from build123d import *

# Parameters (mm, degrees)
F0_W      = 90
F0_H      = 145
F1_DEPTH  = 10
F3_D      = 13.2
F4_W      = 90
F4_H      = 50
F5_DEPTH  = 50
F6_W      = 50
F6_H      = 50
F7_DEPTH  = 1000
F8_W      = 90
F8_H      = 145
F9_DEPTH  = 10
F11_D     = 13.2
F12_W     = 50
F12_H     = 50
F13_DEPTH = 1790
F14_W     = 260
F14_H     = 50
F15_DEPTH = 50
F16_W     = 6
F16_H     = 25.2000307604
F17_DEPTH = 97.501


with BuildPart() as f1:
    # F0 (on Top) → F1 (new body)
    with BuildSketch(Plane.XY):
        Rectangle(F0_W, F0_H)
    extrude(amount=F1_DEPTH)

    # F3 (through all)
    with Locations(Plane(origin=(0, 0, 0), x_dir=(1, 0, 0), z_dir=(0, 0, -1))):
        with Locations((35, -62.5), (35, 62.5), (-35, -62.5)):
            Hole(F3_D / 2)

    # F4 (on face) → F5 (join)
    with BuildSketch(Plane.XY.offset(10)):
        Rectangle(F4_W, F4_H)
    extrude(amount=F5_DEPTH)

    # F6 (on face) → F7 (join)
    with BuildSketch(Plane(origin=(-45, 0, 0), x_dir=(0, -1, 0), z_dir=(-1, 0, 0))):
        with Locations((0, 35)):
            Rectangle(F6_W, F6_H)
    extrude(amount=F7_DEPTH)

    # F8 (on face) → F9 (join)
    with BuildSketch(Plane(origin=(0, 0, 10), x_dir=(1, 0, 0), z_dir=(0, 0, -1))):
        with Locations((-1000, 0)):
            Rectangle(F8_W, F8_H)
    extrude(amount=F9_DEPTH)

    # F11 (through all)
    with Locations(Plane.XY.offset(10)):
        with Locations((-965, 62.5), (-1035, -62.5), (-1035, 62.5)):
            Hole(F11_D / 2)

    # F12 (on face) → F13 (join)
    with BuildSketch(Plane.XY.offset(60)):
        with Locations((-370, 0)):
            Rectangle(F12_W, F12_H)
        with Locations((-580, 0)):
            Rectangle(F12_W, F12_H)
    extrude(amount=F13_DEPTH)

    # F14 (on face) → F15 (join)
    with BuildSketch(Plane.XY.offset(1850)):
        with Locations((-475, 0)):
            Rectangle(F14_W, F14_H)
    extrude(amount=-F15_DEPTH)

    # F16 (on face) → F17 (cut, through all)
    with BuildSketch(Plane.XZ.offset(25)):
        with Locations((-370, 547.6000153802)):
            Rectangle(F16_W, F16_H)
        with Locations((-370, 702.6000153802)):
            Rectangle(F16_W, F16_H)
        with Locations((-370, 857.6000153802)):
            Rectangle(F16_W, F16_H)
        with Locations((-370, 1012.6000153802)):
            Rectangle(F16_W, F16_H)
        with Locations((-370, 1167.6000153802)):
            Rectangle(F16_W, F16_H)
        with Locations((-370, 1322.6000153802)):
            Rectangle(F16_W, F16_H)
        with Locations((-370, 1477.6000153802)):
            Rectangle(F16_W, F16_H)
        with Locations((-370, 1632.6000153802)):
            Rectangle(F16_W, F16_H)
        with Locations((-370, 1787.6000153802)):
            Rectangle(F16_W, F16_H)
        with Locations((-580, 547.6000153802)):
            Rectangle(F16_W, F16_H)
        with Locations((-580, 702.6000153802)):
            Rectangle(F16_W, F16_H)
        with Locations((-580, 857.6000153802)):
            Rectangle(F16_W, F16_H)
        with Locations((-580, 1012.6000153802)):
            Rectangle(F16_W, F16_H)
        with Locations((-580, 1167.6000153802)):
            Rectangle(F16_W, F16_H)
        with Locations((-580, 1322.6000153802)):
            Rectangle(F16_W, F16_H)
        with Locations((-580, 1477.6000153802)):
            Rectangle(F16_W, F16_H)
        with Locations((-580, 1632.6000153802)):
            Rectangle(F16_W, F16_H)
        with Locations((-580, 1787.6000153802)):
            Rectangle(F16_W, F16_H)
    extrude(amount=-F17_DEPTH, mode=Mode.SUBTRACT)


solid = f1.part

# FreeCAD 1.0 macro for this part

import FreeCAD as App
import Part
import Sketcher

doc = App.newDocument("Part")
body = doc.addObject("PartDesign::Body", "Body")

# Sketch on XY plane
sketch1 = body.newObject("Sketcher::SketchObject", "Sketch")
sketch1.AttachmentSupport = (doc.getObject("XY_Plane"), [""])
sketch1.MapMode = "FlatFace"
sketch1.addGeometry([
    Part.LineSegment(App.Vector(-45, 72, 0), App.Vector(-45, -72, 0)),
    Part.LineSegment(App.Vector(-45, -72, 0), App.Vector(45, -72, 0)),
    Part.LineSegment(App.Vector(45, -72, 0), App.Vector(45, 72, 0)),
    Part.LineSegment(App.Vector(45, 72, 0), App.Vector(-45, 72, 0)),
], False)
sketch1.addConstraint([
    Sketcher.Constraint("Coincident", 0, 2, 1, 1),
    Sketcher.Constraint("Coincident", 1, 2, 2, 1),
    Sketcher.Constraint("Coincident", 2, 2, 3, 1),
    Sketcher.Constraint("Coincident", 3, 2, 0, 1),
    Sketcher.Constraint("Vertical", 0),
    Sketcher.Constraint("Horizontal", 1),
    Sketcher.Constraint("Vertical", 2),
    Sketcher.Constraint("Horizontal", 3),
    Sketcher.Constraint("Symmetric", 0, 2, 2, 2, -1, 1),
    Sketcher.Constraint("DistanceX", 1, 1, 1, 2, 90.0),
    Sketcher.Constraint("DistanceY", 0, 2, 0, 1, 145.0),
])
pad1 = body.newObject("PartDesign::Pad", "Pad")
pad1.Profile = sketch1
pad1.Length = 10

# Sketch on XY plane
sketch2 = body.newObject("Sketcher::SketchObject", "Sketch001")
sketch2.AttachmentSupport = (doc.getObject("XY_Plane"), [""])
sketch2.MapMode = "FlatFace"
sketch2.addGeometry([
    Part.Circle(App.Vector(35, 62, 0), App.Vector(0, 0, 1), 7),
    Part.Circle(App.Vector(35, -62, 0), App.Vector(0, 0, 1), 7),
    Part.Circle(App.Vector(-35, 62, 0), App.Vector(0, 0, 1), 7),
], False)
sketch2.addConstraint([
    Sketcher.Constraint("Equal", 0, 1),
    Sketcher.Constraint("Equal", 1, 2),
    Sketcher.Constraint("Symmetric", 1, 3, 2, 3, -1, 1),
    Sketcher.Constraint("Symmetric", 0, 3, 2, 3, -2),
    Sketcher.Constraint("Diameter", 0, 13.2),
    Sketcher.Constraint("DistanceX", -1, 1, 0, 3, 35.0),
    Sketcher.Constraint("DistanceY", 1, 3, 0, 3, 125.0),
])
doc.recompute()
hole = body.newObject("PartDesign::Hole", "Hole")
hole.Profile = sketch2
hole.ThreadType = "None"
hole.Diameter = 13.2
hole.DepthType = "ThroughAll"
hole.Reversed = True

# Sketch on XY plane
sketch3 = body.newObject("Sketcher::SketchObject", "Sketch002")
sketch3.AttachmentSupport = (doc.getObject("XY_Plane"), [""])
sketch3.MapMode = "FlatFace"
sketch3.AttachmentOffset = App.Placement(App.Vector(0, 0, 10), App.Rotation())
sketch3.addGeometry([
    Part.LineSegment(App.Vector(-45, 25, 0), App.Vector(-45, -25, 0)),
    Part.LineSegment(App.Vector(-45, -25, 0), App.Vector(45, -25, 0)),
    Part.LineSegment(App.Vector(45, -25, 0), App.Vector(45, 25, 0)),
    Part.LineSegment(App.Vector(45, 25, 0), App.Vector(-45, 25, 0)),
], False)
sketch3.addConstraint([
    Sketcher.Constraint("Coincident", 0, 2, 1, 1),
    Sketcher.Constraint("Coincident", 1, 2, 2, 1),
    Sketcher.Constraint("Coincident", 2, 2, 3, 1),
    Sketcher.Constraint("Coincident", 3, 2, 0, 1),
    Sketcher.Constraint("Vertical", 0),
    Sketcher.Constraint("Horizontal", 1),
    Sketcher.Constraint("Vertical", 2),
    Sketcher.Constraint("Horizontal", 3),
    Sketcher.Constraint("Symmetric", 0, 2, 2, 2, -1, 1),
    Sketcher.Constraint("DistanceX", 1, 1, 1, 2, 90.0),
    Sketcher.Constraint("DistanceY", 0, 2, 0, 1, 50.0),
])
pad2 = body.newObject("PartDesign::Pad", "Pad001")
pad2.Profile = sketch3
pad2.Length = 50

# Sketch on YZ plane
sketch4 = body.newObject("Sketcher::SketchObject", "Sketch003")
sketch4.AttachmentSupport = (doc.getObject("YZ_Plane"), [""])
sketch4.MapMode = "FlatFace"
sketch4.AttachmentOffset = App.Placement(App.Vector(0, 0, -45), App.Rotation())
sketch4.addGeometry([
    Part.LineSegment(App.Vector(25, 60, 0), App.Vector(25, 10, 0)),
    Part.LineSegment(App.Vector(25, 10, 0), App.Vector(-25, 10, 0)),
    Part.LineSegment(App.Vector(-25, 10, 0), App.Vector(-25, 60, 0)),
    Part.LineSegment(App.Vector(-25, 60, 0), App.Vector(25, 60, 0)),
], False)
sketch4.addConstraint([
    Sketcher.Constraint("Coincident", 0, 2, 1, 1),
    Sketcher.Constraint("Coincident", 1, 2, 2, 1),
    Sketcher.Constraint("Coincident", 2, 2, 3, 1),
    Sketcher.Constraint("Coincident", 3, 2, 0, 1),
    Sketcher.Constraint("Vertical", 0),
    Sketcher.Constraint("Horizontal", 1),
    Sketcher.Constraint("Vertical", 2),
    Sketcher.Constraint("Horizontal", 3),
    Sketcher.Constraint("Equal", 3, 0),
    Sketcher.Constraint("DistanceX", 1, 2, 1, 1, 50.0),
    Sketcher.Constraint("DistanceX", -1, 1, 0, 2, 25.0),
    Sketcher.Constraint("DistanceY", -1, 1, 0, 2, 10.0),
])
pad3 = body.newObject("PartDesign::Pad", "Pad002")
pad3.Profile = sketch4
pad3.Length = 1000
pad3.Reversed = True

# Sketch on XY plane
sketch5 = body.newObject("Sketcher::SketchObject", "Sketch004")
sketch5.AttachmentSupport = (doc.getObject("XY_Plane"), [""])
sketch5.MapMode = "FlatFace"
sketch5.AttachmentOffset = App.Placement(App.Vector(0, 0, 10), App.Rotation())
sketch5.addGeometry([
    Part.LineSegment(App.Vector(-1045, -72, 0), App.Vector(-1045, 72, 0)),
    Part.LineSegment(App.Vector(-1045, 72, 0), App.Vector(-955, 72, 0)),
    Part.LineSegment(App.Vector(-955, 72, 0), App.Vector(-955, -72, 0)),
    Part.LineSegment(App.Vector(-955, -72, 0), App.Vector(-1045, -72, 0)),
], False)
sketch5.addConstraint([
    Sketcher.Constraint("Coincident", 0, 2, 1, 1),
    Sketcher.Constraint("Coincident", 1, 2, 2, 1),
    Sketcher.Constraint("Coincident", 2, 2, 3, 1),
    Sketcher.Constraint("Coincident", 3, 2, 0, 1),
    Sketcher.Constraint("Vertical", 0),
    Sketcher.Constraint("Horizontal", 1),
    Sketcher.Constraint("Vertical", 2),
    Sketcher.Constraint("Horizontal", 3),
    Sketcher.Constraint("DistanceX", 1, 1, 1, 2, 90.0),
    Sketcher.Constraint("DistanceY", 0, 1, 0, 2, 145.0),
    Sketcher.Constraint("DistanceX", 0, 2, -1, 1, 1045.0),
    Sketcher.Constraint("DistanceY", -1, 1, 0, 2, 72.5),
])
pad4 = body.newObject("PartDesign::Pad", "Pad003")
pad4.Profile = sketch5
pad4.Length = 10
pad4.Reversed = True

# Sketch on XY plane
sketch6 = body.newObject("Sketcher::SketchObject", "Sketch005")
sketch6.AttachmentSupport = (doc.getObject("XY_Plane"), [""])
sketch6.MapMode = "FlatFace"
sketch6.AttachmentOffset = App.Placement(App.Vector(0, 0, 10), App.Rotation())
sketch6.addGeometry([
    Part.Circle(App.Vector(-965, 62, 0), App.Vector(0, 0, 1), 7),
    Part.Circle(App.Vector(-1035, -62, 0), App.Vector(0, 0, 1), 7),
    Part.Circle(App.Vector(-1035, 62, 0), App.Vector(0, 0, 1), 7),
], False)
sketch6.addConstraint([
    Sketcher.Constraint("Equal", 0, 1),
    Sketcher.Constraint("Equal", 1, 2),
    Sketcher.Constraint("Symmetric", 1, 3, 2, 3, -1),
    Sketcher.Constraint("Horizontal", 0, 3, 2, 3),
    Sketcher.Constraint("Diameter", 0, 13.2),
    Sketcher.Constraint("DistanceX", 0, 3, -1, 1, 965.0),
    Sketcher.Constraint("DistanceX", 1, 3, -1, 1, 1035.0),
    Sketcher.Constraint("DistanceY", 1, 3, 0, 3, 125.0),
])
doc.recompute()
hole2 = body.newObject("PartDesign::Hole", "Hole001")
hole2.Profile = sketch6
hole2.ThreadType = "None"
hole2.Diameter = 13.2
hole2.DepthType = "ThroughAll"

# Sketch on XY plane
sketch7 = body.newObject("Sketcher::SketchObject", "Sketch006")
sketch7.AttachmentSupport = (doc.getObject("XY_Plane"), [""])
sketch7.MapMode = "FlatFace"
sketch7.AttachmentOffset = App.Placement(App.Vector(0, 0, 60), App.Rotation())
sketch7.addGeometry([
    Part.LineSegment(App.Vector(-395, 25, 0), App.Vector(-395, -25, 0)),  # 0
    Part.LineSegment(App.Vector(-395, -25, 0), App.Vector(-345, -25, 0)),  # 1
    Part.LineSegment(App.Vector(-345, -25, 0), App.Vector(-345, 25, 0)),  # 2
    Part.LineSegment(App.Vector(-345, 25, 0), App.Vector(-395, 25, 0)),  # 3
    Part.LineSegment(App.Vector(-605, 25, 0), App.Vector(-605, -25, 0)),  # 4
    Part.LineSegment(App.Vector(-605, -25, 0), App.Vector(-555, -25, 0)),  # 5
    Part.LineSegment(App.Vector(-555, -25, 0), App.Vector(-555, 25, 0)),  # 6
    Part.LineSegment(App.Vector(-555, 25, 0), App.Vector(-605, 25, 0)),  # 7
], False)
sketch7.addConstraint([
    Sketcher.Constraint("Coincident", 0, 2, 1, 1),
    Sketcher.Constraint("Coincident", 1, 2, 2, 1),
    Sketcher.Constraint("Coincident", 2, 2, 3, 1),
    Sketcher.Constraint("Coincident", 3, 2, 0, 1),
    Sketcher.Constraint("Coincident", 4, 2, 5, 1),
    Sketcher.Constraint("Coincident", 5, 2, 6, 1),
    Sketcher.Constraint("Coincident", 6, 2, 7, 1),
    Sketcher.Constraint("Coincident", 7, 2, 4, 1),
    Sketcher.Constraint("Vertical", 0),
    Sketcher.Constraint("Horizontal", 1),
    Sketcher.Constraint("Vertical", 2),
    Sketcher.Constraint("Horizontal", 3),
    Sketcher.Constraint("Vertical", 4),
    Sketcher.Constraint("Horizontal", 5),
    Sketcher.Constraint("Vertical", 6),
    Sketcher.Constraint("Horizontal", 7),
    Sketcher.Constraint("Horizontal", 1, 2, 4, 2),
    Sketcher.Constraint("Horizontal", 3, 2, 6, 2),
    Sketcher.Constraint("Equal", 3, 5),
    Sketcher.Constraint("Equal", 7, 0),
    Sketcher.Constraint("DistanceX", 1, 1, 1, 2, 50.0),
    Sketcher.Constraint("DistanceX", 0, 2, -1, 1, 395.0),
    Sketcher.Constraint("DistanceY", 0, 2, -1, 1, 25.0),
    Sketcher.Constraint("DistanceX", 4, 2, -1, 1, 605.0),
])
pad5 = body.newObject("PartDesign::Pad", "Pad004")
pad5.Profile = sketch7
pad5.Length = 1790

# Sketch on XY plane
sketch8 = body.newObject("Sketcher::SketchObject", "Sketch007")
sketch8.AttachmentSupport = (doc.getObject("XY_Plane"), [""])
sketch8.MapMode = "FlatFace"
sketch8.AttachmentOffset = App.Placement(App.Vector(0, 0, 1850), App.Rotation())
sketch8.addGeometry([
    Part.LineSegment(App.Vector(-605, 25, 0), App.Vector(-605, -25, 0)),
    Part.LineSegment(App.Vector(-605, -25, 0), App.Vector(-345, -25, 0)),
    Part.LineSegment(App.Vector(-345, -25, 0), App.Vector(-345, 25, 0)),
    Part.LineSegment(App.Vector(-345, 25, 0), App.Vector(-605, 25, 0)),
], False)
sketch8.addConstraint([
    Sketcher.Constraint("Coincident", 0, 2, 1, 1),
    Sketcher.Constraint("Coincident", 1, 2, 2, 1),
    Sketcher.Constraint("Coincident", 2, 2, 3, 1),
    Sketcher.Constraint("Coincident", 3, 2, 0, 1),
    Sketcher.Constraint("Vertical", 0),
    Sketcher.Constraint("Horizontal", 1),
    Sketcher.Constraint("Vertical", 2),
    Sketcher.Constraint("Horizontal", 3),
    Sketcher.Constraint("DistanceX", 1, 1, 1, 2, 260.0),
    Sketcher.Constraint("DistanceY", 0, 2, 0, 1, 50.0),
    Sketcher.Constraint("DistanceX", 0, 2, -1, 1, 605.0),
    Sketcher.Constraint("DistanceY", 0, 2, -1, 1, 25.0),
])
pad6 = body.newObject("PartDesign::Pad", "Pad005")
pad6.Profile = sketch8
pad6.Length = 50
pad6.Reversed = True

# Sketch on XZ plane
sketch9 = body.newObject("Sketcher::SketchObject", "Sketch008")
sketch9.AttachmentSupport = (doc.getObject("XZ_Plane"), [""])
sketch9.MapMode = "FlatFace"
sketch9.AttachmentOffset = App.Placement(App.Vector(0, 0, 25), App.Rotation())
sketch9.addGeometry([
    Part.LineSegment(App.Vector(-373, 560, 0), App.Vector(-373, 535, 0)),  # 0
    Part.LineSegment(App.Vector(-373, 535, 0), App.Vector(-367, 535, 0)),  # 1
    Part.LineSegment(App.Vector(-367, 535, 0), App.Vector(-367, 560, 0)),  # 2
    Part.LineSegment(App.Vector(-367, 560, 0), App.Vector(-373, 560, 0)),  # 3
    Part.LineSegment(App.Vector(-373, 715, 0), App.Vector(-373, 690, 0)),  # 4
    Part.LineSegment(App.Vector(-373, 690, 0), App.Vector(-367, 690, 0)),  # 5
    Part.LineSegment(App.Vector(-367, 690, 0), App.Vector(-367, 715, 0)),  # 6
    Part.LineSegment(App.Vector(-367, 715, 0), App.Vector(-373, 715, 0)),  # 7
    Part.LineSegment(App.Vector(-373, 870, 0), App.Vector(-373, 845, 0)),  # 8
    Part.LineSegment(App.Vector(-373, 845, 0), App.Vector(-367, 845, 0)),  # 9
    Part.LineSegment(App.Vector(-367, 845, 0), App.Vector(-367, 870, 0)),  # 10
    Part.LineSegment(App.Vector(-367, 870, 0), App.Vector(-373, 870, 0)),  # 11
    Part.LineSegment(App.Vector(-373, 1025, 0), App.Vector(-373, 1000, 0)),  # 12
    Part.LineSegment(App.Vector(-373, 1000, 0), App.Vector(-367, 1000, 0)),  # 13
    Part.LineSegment(App.Vector(-367, 1000, 0), App.Vector(-367, 1025, 0)),  # 14
    Part.LineSegment(App.Vector(-367, 1025, 0), App.Vector(-373, 1025, 0)),  # 15
    Part.LineSegment(App.Vector(-373, 1180, 0), App.Vector(-373, 1155, 0)),  # 16
    Part.LineSegment(App.Vector(-373, 1155, 0), App.Vector(-367, 1155, 0)),  # 17
    Part.LineSegment(App.Vector(-367, 1155, 0), App.Vector(-367, 1180, 0)),  # 18
    Part.LineSegment(App.Vector(-367, 1180, 0), App.Vector(-373, 1180, 0)),  # 19
    Part.LineSegment(App.Vector(-373, 1335, 0), App.Vector(-373, 1310, 0)),  # 20
    Part.LineSegment(App.Vector(-373, 1310, 0), App.Vector(-367, 1310, 0)),  # 21
    Part.LineSegment(App.Vector(-367, 1310, 0), App.Vector(-367, 1335, 0)),  # 22
    Part.LineSegment(App.Vector(-367, 1335, 0), App.Vector(-373, 1335, 0)),  # 23
    Part.LineSegment(App.Vector(-373, 1490, 0), App.Vector(-373, 1465, 0)),  # 24
    Part.LineSegment(App.Vector(-373, 1465, 0), App.Vector(-367, 1465, 0)),  # 25
    Part.LineSegment(App.Vector(-367, 1465, 0), App.Vector(-367, 1490, 0)),  # 26
    Part.LineSegment(App.Vector(-367, 1490, 0), App.Vector(-373, 1490, 0)),  # 27
    Part.LineSegment(App.Vector(-373, 1645, 0), App.Vector(-373, 1620, 0)),  # 28
    Part.LineSegment(App.Vector(-373, 1620, 0), App.Vector(-367, 1620, 0)),  # 29
    Part.LineSegment(App.Vector(-367, 1620, 0), App.Vector(-367, 1645, 0)),  # 30
    Part.LineSegment(App.Vector(-367, 1645, 0), App.Vector(-373, 1645, 0)),  # 31
    Part.LineSegment(App.Vector(-373, 1800, 0), App.Vector(-373, 1775, 0)),  # 32
    Part.LineSegment(App.Vector(-373, 1775, 0), App.Vector(-367, 1775, 0)),  # 33
    Part.LineSegment(App.Vector(-367, 1775, 0), App.Vector(-367, 1800, 0)),  # 34
    Part.LineSegment(App.Vector(-367, 1800, 0), App.Vector(-373, 1800, 0)),  # 35
    Part.LineSegment(App.Vector(-583, 560, 0), App.Vector(-583, 535, 0)),  # 36
    Part.LineSegment(App.Vector(-583, 535, 0), App.Vector(-577, 535, 0)),  # 37
    Part.LineSegment(App.Vector(-577, 535, 0), App.Vector(-577, 560, 0)),  # 38
    Part.LineSegment(App.Vector(-577, 560, 0), App.Vector(-583, 560, 0)),  # 39
    Part.LineSegment(App.Vector(-583, 715, 0), App.Vector(-583, 690, 0)),  # 40
    Part.LineSegment(App.Vector(-583, 690, 0), App.Vector(-577, 690, 0)),  # 41
    Part.LineSegment(App.Vector(-577, 690, 0), App.Vector(-577, 715, 0)),  # 42
    Part.LineSegment(App.Vector(-577, 715, 0), App.Vector(-583, 715, 0)),  # 43
    Part.LineSegment(App.Vector(-583, 870, 0), App.Vector(-583, 845, 0)),  # 44
    Part.LineSegment(App.Vector(-583, 845, 0), App.Vector(-577, 845, 0)),  # 45
    Part.LineSegment(App.Vector(-577, 845, 0), App.Vector(-577, 870, 0)),  # 46
    Part.LineSegment(App.Vector(-577, 870, 0), App.Vector(-583, 870, 0)),  # 47
    Part.LineSegment(App.Vector(-583, 1025, 0), App.Vector(-583, 1000, 0)),  # 48
    Part.LineSegment(App.Vector(-583, 1000, 0), App.Vector(-577, 1000, 0)),  # 49
    Part.LineSegment(App.Vector(-577, 1000, 0), App.Vector(-577, 1025, 0)),  # 50
    Part.LineSegment(App.Vector(-577, 1025, 0), App.Vector(-583, 1025, 0)),  # 51
    Part.LineSegment(App.Vector(-583, 1180, 0), App.Vector(-583, 1155, 0)),  # 52
    Part.LineSegment(App.Vector(-583, 1155, 0), App.Vector(-577, 1155, 0)),  # 53
    Part.LineSegment(App.Vector(-577, 1155, 0), App.Vector(-577, 1180, 0)),  # 54
    Part.LineSegment(App.Vector(-577, 1180, 0), App.Vector(-583, 1180, 0)),  # 55
    Part.LineSegment(App.Vector(-583, 1335, 0), App.Vector(-583, 1310, 0)),  # 56
    Part.LineSegment(App.Vector(-583, 1310, 0), App.Vector(-577, 1310, 0)),  # 57
    Part.LineSegment(App.Vector(-577, 1310, 0), App.Vector(-577, 1335, 0)),  # 58
    Part.LineSegment(App.Vector(-577, 1335, 0), App.Vector(-583, 1335, 0)),  # 59
    Part.LineSegment(App.Vector(-583, 1490, 0), App.Vector(-583, 1465, 0)),  # 60
    Part.LineSegment(App.Vector(-583, 1465, 0), App.Vector(-577, 1465, 0)),  # 61
    Part.LineSegment(App.Vector(-577, 1465, 0), App.Vector(-577, 1490, 0)),  # 62
    Part.LineSegment(App.Vector(-577, 1490, 0), App.Vector(-583, 1490, 0)),  # 63
    Part.LineSegment(App.Vector(-583, 1645, 0), App.Vector(-583, 1620, 0)),  # 64
    Part.LineSegment(App.Vector(-583, 1620, 0), App.Vector(-577, 1620, 0)),  # 65
    Part.LineSegment(App.Vector(-577, 1620, 0), App.Vector(-577, 1645, 0)),  # 66
    Part.LineSegment(App.Vector(-577, 1645, 0), App.Vector(-583, 1645, 0)),  # 67
    Part.LineSegment(App.Vector(-583, 1800, 0), App.Vector(-583, 1775, 0)),  # 68
    Part.LineSegment(App.Vector(-583, 1775, 0), App.Vector(-577, 1775, 0)),  # 69
    Part.LineSegment(App.Vector(-577, 1775, 0), App.Vector(-577, 1800, 0)),  # 70
    Part.LineSegment(App.Vector(-577, 1800, 0), App.Vector(-583, 1800, 0)),  # 71
], False)
sketch9.addConstraint([
    Sketcher.Constraint("Coincident", 0, 2, 1, 1),
    Sketcher.Constraint("Coincident", 1, 2, 2, 1),
    Sketcher.Constraint("Coincident", 2, 2, 3, 1),
    Sketcher.Constraint("Coincident", 3, 2, 0, 1),
    Sketcher.Constraint("Coincident", 4, 2, 5, 1),
    Sketcher.Constraint("Coincident", 5, 2, 6, 1),
    Sketcher.Constraint("Coincident", 6, 2, 7, 1),
    Sketcher.Constraint("Coincident", 7, 2, 4, 1),
    Sketcher.Constraint("Coincident", 8, 2, 9, 1),
    Sketcher.Constraint("Coincident", 9, 2, 10, 1),
    Sketcher.Constraint("Coincident", 10, 2, 11, 1),
    Sketcher.Constraint("Coincident", 11, 2, 8, 1),
    Sketcher.Constraint("Coincident", 12, 2, 13, 1),
    Sketcher.Constraint("Coincident", 13, 2, 14, 1),
    Sketcher.Constraint("Coincident", 14, 2, 15, 1),
    Sketcher.Constraint("Coincident", 15, 2, 12, 1),
    Sketcher.Constraint("Coincident", 16, 2, 17, 1),
    Sketcher.Constraint("Coincident", 17, 2, 18, 1),
    Sketcher.Constraint("Coincident", 18, 2, 19, 1),
    Sketcher.Constraint("Coincident", 19, 2, 16, 1),
    Sketcher.Constraint("Coincident", 20, 2, 21, 1),
    Sketcher.Constraint("Coincident", 21, 2, 22, 1),
    Sketcher.Constraint("Coincident", 22, 2, 23, 1),
    Sketcher.Constraint("Coincident", 23, 2, 20, 1),
    Sketcher.Constraint("Coincident", 24, 2, 25, 1),
    Sketcher.Constraint("Coincident", 25, 2, 26, 1),
    Sketcher.Constraint("Coincident", 26, 2, 27, 1),
    Sketcher.Constraint("Coincident", 27, 2, 24, 1),
    Sketcher.Constraint("Coincident", 28, 2, 29, 1),
    Sketcher.Constraint("Coincident", 29, 2, 30, 1),
    Sketcher.Constraint("Coincident", 30, 2, 31, 1),
    Sketcher.Constraint("Coincident", 31, 2, 28, 1),
    Sketcher.Constraint("Coincident", 32, 2, 33, 1),
    Sketcher.Constraint("Coincident", 33, 2, 34, 1),
    Sketcher.Constraint("Coincident", 34, 2, 35, 1),
    Sketcher.Constraint("Coincident", 35, 2, 32, 1),
    Sketcher.Constraint("Coincident", 36, 2, 37, 1),
    Sketcher.Constraint("Coincident", 37, 2, 38, 1),
    Sketcher.Constraint("Coincident", 38, 2, 39, 1),
    Sketcher.Constraint("Coincident", 39, 2, 36, 1),
    Sketcher.Constraint("Coincident", 40, 2, 41, 1),
    Sketcher.Constraint("Coincident", 41, 2, 42, 1),
    Sketcher.Constraint("Coincident", 42, 2, 43, 1),
    Sketcher.Constraint("Coincident", 43, 2, 40, 1),
    Sketcher.Constraint("Coincident", 44, 2, 45, 1),
    Sketcher.Constraint("Coincident", 45, 2, 46, 1),
    Sketcher.Constraint("Coincident", 46, 2, 47, 1),
    Sketcher.Constraint("Coincident", 47, 2, 44, 1),
    Sketcher.Constraint("Coincident", 48, 2, 49, 1),
    Sketcher.Constraint("Coincident", 49, 2, 50, 1),
    Sketcher.Constraint("Coincident", 50, 2, 51, 1),
    Sketcher.Constraint("Coincident", 51, 2, 48, 1),
    Sketcher.Constraint("Coincident", 52, 2, 53, 1),
    Sketcher.Constraint("Coincident", 53, 2, 54, 1),
    Sketcher.Constraint("Coincident", 54, 2, 55, 1),
    Sketcher.Constraint("Coincident", 55, 2, 52, 1),
    Sketcher.Constraint("Coincident", 56, 2, 57, 1),
    Sketcher.Constraint("Coincident", 57, 2, 58, 1),
    Sketcher.Constraint("Coincident", 58, 2, 59, 1),
    Sketcher.Constraint("Coincident", 59, 2, 56, 1),
    Sketcher.Constraint("Coincident", 60, 2, 61, 1),
    Sketcher.Constraint("Coincident", 61, 2, 62, 1),
    Sketcher.Constraint("Coincident", 62, 2, 63, 1),
    Sketcher.Constraint("Coincident", 63, 2, 60, 1),
    Sketcher.Constraint("Coincident", 64, 2, 65, 1),
    Sketcher.Constraint("Coincident", 65, 2, 66, 1),
    Sketcher.Constraint("Coincident", 66, 2, 67, 1),
    Sketcher.Constraint("Coincident", 67, 2, 64, 1),
    Sketcher.Constraint("Coincident", 68, 2, 69, 1),
    Sketcher.Constraint("Coincident", 69, 2, 70, 1),
    Sketcher.Constraint("Coincident", 70, 2, 71, 1),
    Sketcher.Constraint("Coincident", 71, 2, 68, 1),
    Sketcher.Constraint("Vertical", 0),
    Sketcher.Constraint("Horizontal", 1),
    Sketcher.Constraint("Vertical", 2),
    Sketcher.Constraint("Horizontal", 3),
    Sketcher.Constraint("Vertical", 4),
    Sketcher.Constraint("Horizontal", 5),
    Sketcher.Constraint("Vertical", 6),
    Sketcher.Constraint("Horizontal", 7),
    Sketcher.Constraint("Vertical", 8),
    Sketcher.Constraint("Horizontal", 9),
    Sketcher.Constraint("Vertical", 10),
    Sketcher.Constraint("Horizontal", 11),
    Sketcher.Constraint("Vertical", 12),
    Sketcher.Constraint("Horizontal", 13),
    Sketcher.Constraint("Vertical", 14),
    Sketcher.Constraint("Horizontal", 15),
    Sketcher.Constraint("Vertical", 16),
    Sketcher.Constraint("Horizontal", 17),
    Sketcher.Constraint("Vertical", 18),
    Sketcher.Constraint("Horizontal", 19),
    Sketcher.Constraint("Vertical", 20),
    Sketcher.Constraint("Horizontal", 21),
    Sketcher.Constraint("Vertical", 22),
    Sketcher.Constraint("Horizontal", 23),
    Sketcher.Constraint("Vertical", 24),
    Sketcher.Constraint("Horizontal", 25),
    Sketcher.Constraint("Vertical", 26),
    Sketcher.Constraint("Horizontal", 27),
    Sketcher.Constraint("Vertical", 28),
    Sketcher.Constraint("Horizontal", 29),
    Sketcher.Constraint("Vertical", 30),
    Sketcher.Constraint("Horizontal", 31),
    Sketcher.Constraint("Vertical", 32),
    Sketcher.Constraint("Horizontal", 33),
    Sketcher.Constraint("Vertical", 34),
    Sketcher.Constraint("Horizontal", 35),
    Sketcher.Constraint("Vertical", 36),
    Sketcher.Constraint("Horizontal", 37),
    Sketcher.Constraint("Vertical", 38),
    Sketcher.Constraint("Horizontal", 39),
    Sketcher.Constraint("Vertical", 40),
    Sketcher.Constraint("Horizontal", 41),
    Sketcher.Constraint("Vertical", 42),
    Sketcher.Constraint("Horizontal", 43),
    Sketcher.Constraint("Vertical", 44),
    Sketcher.Constraint("Horizontal", 45),
    Sketcher.Constraint("Vertical", 46),
    Sketcher.Constraint("Horizontal", 47),
    Sketcher.Constraint("Vertical", 48),
    Sketcher.Constraint("Horizontal", 49),
    Sketcher.Constraint("Vertical", 50),
    Sketcher.Constraint("Horizontal", 51),
    Sketcher.Constraint("Vertical", 52),
    Sketcher.Constraint("Horizontal", 53),
    Sketcher.Constraint("Vertical", 54),
    Sketcher.Constraint("Horizontal", 55),
    Sketcher.Constraint("Vertical", 56),
    Sketcher.Constraint("Horizontal", 57),
    Sketcher.Constraint("Vertical", 58),
    Sketcher.Constraint("Horizontal", 59),
    Sketcher.Constraint("Vertical", 60),
    Sketcher.Constraint("Horizontal", 61),
    Sketcher.Constraint("Vertical", 62),
    Sketcher.Constraint("Horizontal", 63),
    Sketcher.Constraint("Vertical", 64),
    Sketcher.Constraint("Horizontal", 65),
    Sketcher.Constraint("Vertical", 66),
    Sketcher.Constraint("Horizontal", 67),
    Sketcher.Constraint("Vertical", 68),
    Sketcher.Constraint("Horizontal", 69),
    Sketcher.Constraint("Vertical", 70),
    Sketcher.Constraint("Horizontal", 71),
    Sketcher.Constraint("Horizontal", 1, 2, 36, 2),
    Sketcher.Constraint("Horizontal", 3, 2, 38, 2),
    Sketcher.Constraint("Horizontal", 5, 2, 40, 2),
    Sketcher.Constraint("Horizontal", 7, 2, 42, 2),
    Sketcher.Constraint("Horizontal", 9, 2, 44, 2),
    Sketcher.Constraint("Horizontal", 11, 2, 46, 2),
    Sketcher.Constraint("Horizontal", 13, 2, 48, 2),
    Sketcher.Constraint("Horizontal", 15, 2, 50, 2),
    Sketcher.Constraint("Horizontal", 17, 2, 52, 2),
    Sketcher.Constraint("Horizontal", 19, 2, 54, 2),
    Sketcher.Constraint("Horizontal", 21, 2, 56, 2),
    Sketcher.Constraint("Horizontal", 23, 2, 58, 2),
    Sketcher.Constraint("Horizontal", 25, 2, 60, 2),
    Sketcher.Constraint("Horizontal", 27, 2, 62, 2),
    Sketcher.Constraint("Horizontal", 29, 2, 64, 2),
    Sketcher.Constraint("Horizontal", 31, 2, 66, 2),
    Sketcher.Constraint("Horizontal", 33, 2, 68, 2),
    Sketcher.Constraint("Horizontal", 35, 2, 70, 2),
    Sketcher.Constraint("Vertical", 3, 2, 4, 2),
    Sketcher.Constraint("Vertical", 2, 2, 5, 2),
    Sketcher.Constraint("Vertical", 7, 2, 8, 2),
    Sketcher.Constraint("Vertical", 6, 2, 9, 2),
    Sketcher.Constraint("Vertical", 11, 2, 12, 2),
    Sketcher.Constraint("Vertical", 10, 2, 13, 2),
    Sketcher.Constraint("Vertical", 15, 2, 16, 2),
    Sketcher.Constraint("Vertical", 14, 2, 17, 2),
    Sketcher.Constraint("Vertical", 19, 2, 20, 2),
    Sketcher.Constraint("Vertical", 18, 2, 21, 2),
    Sketcher.Constraint("Vertical", 23, 2, 24, 2),
    Sketcher.Constraint("Vertical", 22, 2, 25, 2),
    Sketcher.Constraint("Vertical", 27, 2, 28, 2),
    Sketcher.Constraint("Vertical", 26, 2, 29, 2),
    Sketcher.Constraint("Vertical", 31, 2, 32, 2),
    Sketcher.Constraint("Vertical", 30, 2, 33, 2),
    Sketcher.Constraint("Vertical", 39, 2, 40, 2),
    Sketcher.Constraint("Vertical", 38, 2, 41, 2),
    Sketcher.Constraint("Vertical", 43, 2, 44, 2),
    Sketcher.Constraint("Vertical", 42, 2, 45, 2),
    Sketcher.Constraint("Vertical", 47, 2, 48, 2),
    Sketcher.Constraint("Vertical", 46, 2, 49, 2),
    Sketcher.Constraint("Vertical", 51, 2, 52, 2),
    Sketcher.Constraint("Vertical", 50, 2, 53, 2),
    Sketcher.Constraint("Vertical", 55, 2, 56, 2),
    Sketcher.Constraint("Vertical", 54, 2, 57, 2),
    Sketcher.Constraint("Vertical", 59, 2, 60, 2),
    Sketcher.Constraint("Vertical", 58, 2, 61, 2),
    Sketcher.Constraint("Vertical", 63, 2, 64, 2),
    Sketcher.Constraint("Vertical", 62, 2, 65, 2),
    Sketcher.Constraint("Vertical", 67, 2, 68, 2),
    Sketcher.Constraint("Vertical", 66, 2, 69, 2),
    Sketcher.Constraint("Equal", 35, 37),
    Sketcher.Constraint("Equal", 2, 4),
    Sketcher.Constraint("Equal", 6, 8),
    Sketcher.Constraint("Equal", 10, 12),
    Sketcher.Constraint("Equal", 14, 16),
    Sketcher.Constraint("Equal", 18, 20),
    Sketcher.Constraint("Equal", 22, 24),
    Sketcher.Constraint("Equal", 26, 28),
    Sketcher.Constraint("Equal", 30, 32),
    Sketcher.Constraint("DistanceX", 1, 1, 1, 2, 6.0),
    Sketcher.Constraint("DistanceX", 0, 2, -1, 1, 373.0),
    Sketcher.Constraint("DistanceY", -1, 1, 0, 2, 535.0),
    Sketcher.Constraint("DistanceY", -1, 1, 4, 2, 690.0),
    Sketcher.Constraint("DistanceY", -1, 1, 8, 2, 845.0),
    Sketcher.Constraint("DistanceY", -1, 1, 12, 2, 1000.0),
    Sketcher.Constraint("DistanceY", -1, 1, 16, 2, 1155.0),
    Sketcher.Constraint("DistanceY", -1, 1, 20, 2, 1310.0),
    Sketcher.Constraint("DistanceY", -1, 1, 24, 2, 1465.0),
    Sketcher.Constraint("DistanceY", -1, 1, 28, 2, 1620.0),
    Sketcher.Constraint("DistanceY", -1, 1, 32, 2, 1775.0),
    Sketcher.Constraint("DistanceX", 36, 2, -1, 1, 583.0),
    Sketcher.Constraint("DistanceY", 0, 2, 0, 1, 25.200031),
])
pocket1 = body.newObject("PartDesign::Pocket", "Pocket")
pocket1.Profile = sketch9
pocket1.Type = "ThroughAll"

doc.recompute()
